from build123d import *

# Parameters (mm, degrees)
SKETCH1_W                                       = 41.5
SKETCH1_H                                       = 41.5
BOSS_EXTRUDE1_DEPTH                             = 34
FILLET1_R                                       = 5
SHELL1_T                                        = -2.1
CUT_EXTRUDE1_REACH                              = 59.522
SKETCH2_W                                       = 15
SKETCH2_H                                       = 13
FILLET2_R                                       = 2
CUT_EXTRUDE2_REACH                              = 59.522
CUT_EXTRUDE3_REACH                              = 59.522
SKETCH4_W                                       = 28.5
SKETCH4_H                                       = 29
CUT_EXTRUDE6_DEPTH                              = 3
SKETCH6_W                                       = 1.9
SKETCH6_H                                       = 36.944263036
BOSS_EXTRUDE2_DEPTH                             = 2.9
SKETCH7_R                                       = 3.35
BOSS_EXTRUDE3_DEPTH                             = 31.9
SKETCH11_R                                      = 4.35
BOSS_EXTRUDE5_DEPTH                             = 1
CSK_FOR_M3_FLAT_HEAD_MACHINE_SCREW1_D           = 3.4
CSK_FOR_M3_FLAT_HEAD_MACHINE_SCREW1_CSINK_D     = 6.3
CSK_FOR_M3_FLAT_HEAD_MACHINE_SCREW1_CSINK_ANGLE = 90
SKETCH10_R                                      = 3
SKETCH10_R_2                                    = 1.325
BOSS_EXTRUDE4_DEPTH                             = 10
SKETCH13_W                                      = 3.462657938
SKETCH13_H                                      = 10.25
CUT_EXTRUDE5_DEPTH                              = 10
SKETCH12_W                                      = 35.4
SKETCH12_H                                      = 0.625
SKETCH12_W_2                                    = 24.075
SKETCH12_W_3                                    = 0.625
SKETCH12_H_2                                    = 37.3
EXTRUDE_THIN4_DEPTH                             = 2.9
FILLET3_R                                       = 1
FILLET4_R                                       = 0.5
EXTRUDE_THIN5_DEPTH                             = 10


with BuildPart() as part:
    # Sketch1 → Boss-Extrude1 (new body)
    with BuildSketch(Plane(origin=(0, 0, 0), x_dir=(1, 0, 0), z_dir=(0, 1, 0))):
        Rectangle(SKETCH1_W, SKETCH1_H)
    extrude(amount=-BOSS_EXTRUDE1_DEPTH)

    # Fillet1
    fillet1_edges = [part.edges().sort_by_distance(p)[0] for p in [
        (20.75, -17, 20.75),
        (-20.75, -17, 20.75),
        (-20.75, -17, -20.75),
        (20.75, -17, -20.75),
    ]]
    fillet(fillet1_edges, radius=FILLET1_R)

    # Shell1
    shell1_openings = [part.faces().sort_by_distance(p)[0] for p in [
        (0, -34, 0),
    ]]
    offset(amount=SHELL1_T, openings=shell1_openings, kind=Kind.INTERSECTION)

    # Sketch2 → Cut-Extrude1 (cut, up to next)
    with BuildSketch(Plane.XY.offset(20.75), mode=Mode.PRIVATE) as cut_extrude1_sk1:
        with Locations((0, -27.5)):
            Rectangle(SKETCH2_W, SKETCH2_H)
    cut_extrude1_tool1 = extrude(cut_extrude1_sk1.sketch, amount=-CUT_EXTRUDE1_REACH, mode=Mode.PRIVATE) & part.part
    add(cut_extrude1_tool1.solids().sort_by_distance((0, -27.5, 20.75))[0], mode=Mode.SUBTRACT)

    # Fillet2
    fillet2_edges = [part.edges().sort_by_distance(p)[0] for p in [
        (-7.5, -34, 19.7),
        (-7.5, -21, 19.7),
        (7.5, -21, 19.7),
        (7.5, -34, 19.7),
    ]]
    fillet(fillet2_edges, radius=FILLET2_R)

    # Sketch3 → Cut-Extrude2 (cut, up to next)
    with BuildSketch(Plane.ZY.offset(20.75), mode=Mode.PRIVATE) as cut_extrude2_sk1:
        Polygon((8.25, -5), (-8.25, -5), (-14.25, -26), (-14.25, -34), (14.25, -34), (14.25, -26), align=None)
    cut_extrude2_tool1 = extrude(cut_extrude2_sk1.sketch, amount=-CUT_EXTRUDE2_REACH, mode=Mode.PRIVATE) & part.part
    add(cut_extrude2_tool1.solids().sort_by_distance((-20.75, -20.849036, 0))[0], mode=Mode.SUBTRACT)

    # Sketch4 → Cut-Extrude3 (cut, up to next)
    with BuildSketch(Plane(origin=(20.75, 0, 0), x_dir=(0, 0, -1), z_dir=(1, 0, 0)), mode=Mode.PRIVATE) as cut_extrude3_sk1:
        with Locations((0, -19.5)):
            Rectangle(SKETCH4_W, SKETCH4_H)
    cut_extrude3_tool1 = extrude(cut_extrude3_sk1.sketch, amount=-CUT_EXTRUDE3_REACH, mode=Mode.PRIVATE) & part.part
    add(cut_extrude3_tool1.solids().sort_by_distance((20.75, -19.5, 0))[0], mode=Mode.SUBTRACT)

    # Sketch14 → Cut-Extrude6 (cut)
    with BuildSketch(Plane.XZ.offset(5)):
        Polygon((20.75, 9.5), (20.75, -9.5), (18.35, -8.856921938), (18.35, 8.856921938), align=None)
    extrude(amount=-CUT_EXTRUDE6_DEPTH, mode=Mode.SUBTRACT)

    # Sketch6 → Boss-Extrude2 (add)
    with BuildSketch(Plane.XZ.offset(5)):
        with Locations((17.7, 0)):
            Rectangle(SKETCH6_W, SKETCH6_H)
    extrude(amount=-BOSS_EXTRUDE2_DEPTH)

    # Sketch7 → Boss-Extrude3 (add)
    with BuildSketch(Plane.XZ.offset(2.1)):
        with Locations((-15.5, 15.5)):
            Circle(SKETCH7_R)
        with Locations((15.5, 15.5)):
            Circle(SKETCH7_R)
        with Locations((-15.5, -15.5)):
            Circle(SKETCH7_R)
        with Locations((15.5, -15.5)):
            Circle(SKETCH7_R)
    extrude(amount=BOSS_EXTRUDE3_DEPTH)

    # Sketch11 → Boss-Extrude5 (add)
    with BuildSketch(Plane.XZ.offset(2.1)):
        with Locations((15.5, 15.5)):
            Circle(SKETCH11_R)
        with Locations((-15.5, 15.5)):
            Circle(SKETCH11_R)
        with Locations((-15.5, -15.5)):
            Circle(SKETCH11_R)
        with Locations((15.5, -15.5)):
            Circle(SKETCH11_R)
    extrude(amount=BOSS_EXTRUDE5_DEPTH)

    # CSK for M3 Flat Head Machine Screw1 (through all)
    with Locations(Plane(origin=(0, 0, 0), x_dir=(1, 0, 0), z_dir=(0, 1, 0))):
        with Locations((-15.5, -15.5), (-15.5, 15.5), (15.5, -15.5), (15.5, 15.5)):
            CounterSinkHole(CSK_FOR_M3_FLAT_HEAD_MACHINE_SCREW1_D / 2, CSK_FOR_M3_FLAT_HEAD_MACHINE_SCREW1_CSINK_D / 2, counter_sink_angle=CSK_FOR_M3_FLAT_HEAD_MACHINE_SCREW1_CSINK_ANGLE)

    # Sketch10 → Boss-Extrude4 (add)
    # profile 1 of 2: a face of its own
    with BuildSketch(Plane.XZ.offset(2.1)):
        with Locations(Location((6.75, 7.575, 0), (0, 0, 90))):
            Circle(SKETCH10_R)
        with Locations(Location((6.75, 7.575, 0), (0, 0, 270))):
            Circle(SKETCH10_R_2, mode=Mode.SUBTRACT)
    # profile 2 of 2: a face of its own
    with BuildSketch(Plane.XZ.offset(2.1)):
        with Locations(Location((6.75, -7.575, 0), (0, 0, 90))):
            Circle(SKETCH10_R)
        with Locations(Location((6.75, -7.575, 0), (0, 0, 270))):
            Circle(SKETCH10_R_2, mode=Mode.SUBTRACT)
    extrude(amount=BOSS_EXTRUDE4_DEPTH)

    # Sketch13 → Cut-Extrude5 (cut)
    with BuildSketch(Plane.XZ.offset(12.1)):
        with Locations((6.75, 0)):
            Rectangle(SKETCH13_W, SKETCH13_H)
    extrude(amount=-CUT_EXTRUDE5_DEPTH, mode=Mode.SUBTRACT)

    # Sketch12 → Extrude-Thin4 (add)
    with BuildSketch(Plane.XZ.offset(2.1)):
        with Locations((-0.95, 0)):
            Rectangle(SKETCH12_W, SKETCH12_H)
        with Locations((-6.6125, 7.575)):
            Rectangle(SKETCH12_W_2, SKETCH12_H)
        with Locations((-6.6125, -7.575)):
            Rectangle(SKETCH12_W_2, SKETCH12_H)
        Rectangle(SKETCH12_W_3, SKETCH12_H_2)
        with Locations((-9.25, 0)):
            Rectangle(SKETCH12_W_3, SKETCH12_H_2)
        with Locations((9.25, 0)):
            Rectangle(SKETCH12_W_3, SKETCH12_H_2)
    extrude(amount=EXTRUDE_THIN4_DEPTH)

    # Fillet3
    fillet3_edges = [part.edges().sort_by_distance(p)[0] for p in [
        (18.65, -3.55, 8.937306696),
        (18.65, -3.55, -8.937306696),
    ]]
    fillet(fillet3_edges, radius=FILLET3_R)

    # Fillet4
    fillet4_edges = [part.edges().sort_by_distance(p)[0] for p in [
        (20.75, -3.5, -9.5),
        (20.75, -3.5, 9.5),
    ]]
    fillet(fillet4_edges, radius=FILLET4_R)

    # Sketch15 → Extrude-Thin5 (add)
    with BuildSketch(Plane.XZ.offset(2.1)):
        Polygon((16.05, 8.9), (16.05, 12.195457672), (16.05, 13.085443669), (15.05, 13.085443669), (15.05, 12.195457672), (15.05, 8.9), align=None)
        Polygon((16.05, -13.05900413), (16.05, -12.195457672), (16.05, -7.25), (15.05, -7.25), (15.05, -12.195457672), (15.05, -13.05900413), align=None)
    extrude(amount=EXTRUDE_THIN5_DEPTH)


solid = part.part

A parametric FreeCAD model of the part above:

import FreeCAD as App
import Part
import Sketcher

V = App.Vector
Q = App.Units.Quantity


def edges_at(feature, points):
    """Names of the edges that pass closest to the given points."""
    edges = feature.Shape.Edges
    near = lambda p: min(range(len(edges)), key=lambda i: edges[i].distToShape(Part.Vertex(*p))[0])
    return sorted({f"Edge{near(p) + 1}" for p in points})


def faces_at(feature, points):
    """Names of the faces that lie closest to the given points."""
    faces = feature.Shape.Faces
    near = lambda p: min(range(len(faces)), key=lambda i: faces[i].distToShape(Part.Vertex(*p))[0])
    return sorted({f"Face{near(p) + 1}" for p in points})


def add_polygon(sketch, points):
    """Adds a closed chain of lines whose ends are joined by coincident constraints."""
    first, n = sketch.GeometryCount, len(points)
    for a, b in zip(points, points[1:] + points[:1]):
        sketch.addGeometry(Part.LineSegment(App.Vector(*a, 0), App.Vector(*b, 0)), False)
    for i in range(n):
        sketch.addConstraint(Sketcher.Constraint("Coincident", first + i, 2, first + (i + 1) % n, 1))

doc = App.newDocument("Part")
params = doc.addObject("Spreadsheet::Sheet", "Params")
for row, (alias, value) in enumerate([
    ("sketch1_width", "41.5 mm"),
    ("pad1_length", "34 mm"),
    ("fillet_radius", "5 mm"),
    ("thickness_wall", "2.1 mm"),
    ("sketch2_width", "15 mm"),
    ("sketch2_height", "13 mm"),
    ("fillet2_radius", "2 mm"),
    ("sketch3_width", "8 mm"),
    ("sketch3_height", "16.5 mm"),
    ("sketch3_height2", "28.5 mm"),
    ("sketch4_width", "29 mm"),
    ("sketch4_height", "28.5 mm"),
    ("sketch5_height", "19 mm"),
    ("pocket4_length", "3 mm"),
    ("sketch6_width", "1.9 mm"),
    ("pad2_length", "2.9 mm"),
    ("sketch7_diameter", "6.7 mm"),
    ("pad3_length", "31.9 mm"),
    ("sketch8_diameter", "8.7 mm"),
    ("pad4_length", "1 mm"),
    ("sketch9_diameter", "3.4 mm"),
    ("hole_diameter", "3.4 mm"),
    ("hole_csink_diameter", "6.3 mm"),
    ("sketch10_diameter", "6 mm"),
    ("sketch10_diameter2", "2.65 mm"),
    ("pad5_length", "10 mm"),
    ("sketch11_height", "10.25 mm"),
    ("pocket5_length", "10 mm"),
    ("sketch12_height", "6.95 mm"),
    ("pad6_length", "2.9 mm"),
    ("fillet3_radius", "1 mm"),
    ("fillet4_radius", "0.5 mm"),
    ("sketch13_width", "1 mm"),
    ("pad7_length", "10 mm"),
], start=1):
    params.set(f"A{row}", alias)
    params.set(f"B{row}", "=" + value)
    params.setAlias(f"B{row}", alias)

body = doc.addObject("PartDesign::Body", "Body")

sketch1 = doc.addObject("Sketcher::SketchObject", "Sketch")
body.addObject(sketch1)
sketch1.AttachmentSupport = (doc.XZ_Plane, [""])
sketch1.MapMode = "FlatFace"
add_polygon(sketch1, [(-21, -21), (-21, 21), (21, 21), (21, -21)])
sketch1.addConstraint(Sketcher.Constraint("Vertical", 0))
sketch1.addConstraint(Sketcher.Constraint("Horizontal", 1))
sketch1.addConstraint(Sketcher.Constraint("Vertical", 2))
sketch1.addConstraint(Sketcher.Constraint("Horizontal", 3))
sketch1.addConstraint(Sketcher.Constraint("Symmetric", 0, 2, 2, 2, -1, 1))
sketch1.addConstraint(Sketcher.Constraint("Equal", 3, 0))
sketch1.addConstraint(Sketcher.Constraint("DistanceX", 1, 1, 1, 2, Q("41.5 mm")))
sketch1.setExpression("Constraints[10]", "Params.sketch1_width")
pad1 = doc.addObject("PartDesign::Pad", "Pad")
body.addObject(pad1)
pad1.Profile = sketch1
pad1.setExpression("Length", "Params.pad1_length")
doc.recompute()

fillet = doc.addObject("PartDesign::Fillet", "Fillet")
body.addObject(fillet)
fillet.Base = (pad1, edges_at(pad1, [
    (20.75, -17, 20.75),
    (-20.75, -17, 20.75),
    (-20.75, -17, -20.75),
    (20.75, -17, -20.75),
]))
fillet.setExpression("Radius", "Params.fillet_radius")
doc.recompute()

thickness = doc.addObject("PartDesign::Thickness", "Thickness")
body.addObject(thickness)
thickness.Base = (fillet, faces_at(fillet, [(0, -34, 0)]))
thickness.setExpression("Value", "Params.thickness_wall")
thickness.Reversed = True
thickness.Join = "Intersection"

sketch2 = doc.addObject("Sketcher::SketchObject", "Sketch001")
body.addObject(sketch2)
sketch2.AttachmentSupport = (doc.XY_Plane, [""])
sketch2.MapMode = "FlatFace"
sketch2.AttachmentOffset = App.Placement(V(0, 0, 20.75), App.Rotation())
add_polygon(sketch2, [(-8, -21), (-8, -34), (8, -34), (8, -21)])
sketch2.addConstraint(Sketcher.Constraint("Vertical", 0))
sketch2.addConstraint(Sketcher.Constraint("Horizontal", 1))
sketch2.addConstraint(Sketcher.Constraint("Vertical", 2))
sketch2.addConstraint(Sketcher.Constraint("Horizontal", 3))
sketch2.addConstraint(Sketcher.Constraint("DistanceX", 1, 1, 1, 2, Q("15 mm")))
sketch2.addConstraint(Sketcher.Constraint("DistanceY", 0, 2, 0, 1, Q("13 mm")))
sketch2.addConstraint(Sketcher.Constraint("DistanceY", 0, 2, -1, 1, Q("34 mm")))
sketch2.addConstraint(Sketcher.Constraint("DistanceX", 0, 2, -1, 1, Q("7.5 mm")))
sketch2.setExpression("Constraints[8]", "Params.sketch2_width")
sketch2.setExpression("Constraints[9]", "Params.sketch2_height")
pocket1 = doc.addObject("PartDesign::Pocket", "Pocket")
body.addObject(pocket1)
pocket1.Profile = sketch2
pocket1.Type = "UpToFirst"
doc.recompute()

fillet2 = doc.addObject("PartDesign::Fillet", "Fillet001")
body.addObject(fillet2)
fillet2.Base = (pocket1, edges_at(pocket1, [
    (-7.5, -34, 19.7),
    (-7.5, -21, 19.7),
    (7.5, -21, 19.7),
    (7.5, -34, 19.7),
]))
fillet2.setExpression("Radius", "Params.fillet2_radius")

sketch3 = doc.addObject("Sketcher::SketchObject", "Sketch002")
body.addObject(sketch3)
sketch3.AttachmentSupport = (doc.YZ_Plane, [""])
sketch3.MapMode = "FlatFace"
sketch3.AttachmentOffset = App.Placement(V(0, 0, -20.75), App.Rotation())
add_polygon(sketch3, [(-5, 8), (-5, -8), (-26, -14), (-34, -14), (-34, 14), (-26, 14)])
sketch3.addConstraint(Sketcher.Constraint("Vertical", 0))
sketch3.addConstraint(Sketcher.Constraint("Horizontal", 2))
sketch3.addConstraint(Sketcher.Constraint("Vertical", 3))
sketch3.addConstraint(Sketcher.Constraint("Horizontal", 4))
sketch3.addConstraint(Sketcher.Constraint("Symmetric", 1, 2, 4, 2, -1))
sketch3.addConstraint(Sketcher.Constraint("Equal", 1, 5))
sketch3.addConstraint(Sketcher.Constraint("DistanceX", 2, 2, 2, 1, Q("8 mm")))
sketch3.addConstraint(Sketcher.Constraint("DistanceY", 0, 2, 0, 1, Q("16.5 mm")))
sketch3.addConstraint(Sketcher.Constraint("DistanceY", 3, 1, 3, 2, Q("28.5 mm")))
sketch3.addConstraint(Sketcher.Constraint("DistanceX", 0, 2, -1, 1, Q("5 mm")))
sketch3.addConstraint(Sketcher.Constraint("DistanceX", 1, 2, -1, 1, Q("26 mm")))
sketch3.setExpression("Constraints[12]", "Params.sketch3_width")
sketch3.setExpression("Constraints[13]", "Params.sketch3_height")
sketch3.setExpression("Constraints[14]", "Params.sketch3_height2")
pocket2 = doc.addObject("PartDesign::Pocket", "Pocket001")
body.addObject(pocket2)
pocket2.Profile = sketch3
pocket2.Type = "UpToFirst"
pocket2.Reversed = True

sketch4 = doc.addObject("Sketcher::SketchObject", "Sketch003")
body.addObject(sketch4)
sketch4.AttachmentSupport = (doc.YZ_Plane, [""])
sketch4.MapMode = "FlatFace"
sketch4.AttachmentOffset = App.Placement(V(0, 0, 20.75), App.Rotation())
add_polygon(sketch4, [(-5, 14), (-34, 14), (-34, -14), (-5, -14)])
sketch4.addConstraint(Sketcher.Constraint("Horizontal", 0))
sketch4.addConstraint(Sketcher.Constraint("Vertical", 1))
sketch4.addConstraint(Sketcher.Constraint("Horizontal", 2))
sketch4.addConstraint(Sketcher.Constraint("Vertical", 3))
sketch4.addConstraint(Sketcher.Constraint("DistanceX", 0, 2, 0, 1, Q("29 mm")))
sketch4.addConstraint(Sketcher.Constraint("DistanceY", 1, 2, 1, 1, Q("28.5 mm")))
sketch4.addConstraint(Sketcher.Constraint("DistanceX", 0, 2, -1, 1, Q("34 mm")))
sketch4.addConstraint(Sketcher.Constraint("DistanceY", -1, 1, 0, 2, Q("14.25 mm")))
sketch4.setExpression("Constraints[8]", "Params.sketch4_width")
sketch4.setExpression("Constraints[9]", "Params.sketch4_height")
pocket3 = doc.addObject("PartDesign::Pocket", "Pocket002")
body.addObject(pocket3)
pocket3.Profile = sketch4
pocket3.Type = "UpToFirst"

sketch5 = doc.addObject("Sketcher::SketchObject", "Sketch004")
body.addObject(sketch5)
sketch5.AttachmentSupport = (doc.XZ_Plane, [""])
sketch5.MapMode = "FlatFace"
sketch5.AttachmentOffset = App.Placement(V(0, 0, 5), App.Rotation())
add_polygon(sketch5, [(20.8, -9.5), (20.8, 9.5), (18.4, 8.9), (18.4, -8.9)])
sketch5.addConstraint(Sketcher.Constraint("Vertical", 0))
sketch5.addConstraint(Sketcher.Constraint("Vertical", 2))
sketch5.addConstraint(Sketcher.Constraint("Equal", 1, 3))
sketch5.addConstraint(Sketcher.Constraint("DistanceY", 0, 1, 0, 2, Q("19 mm")))
sketch5.addConstraint(Sketcher.Constraint("Angle", 1, Q("-165 deg")))
sketch5.addConstraint(Sketcher.Constraint("DistanceY", -1, 1, 0, 2, Q("9.5 mm")))
sketch5.addConstraint(Sketcher.Constraint("DistanceX", 1, 2, 0, 2, Q("2.4 mm")))
sketch5.addConstraint(Sketcher.Constraint("DistanceX", -1, 1, 0, 2, Q("20.75 mm")))
sketch5.setExpression("Constraints[7]", "Params.sketch5_height")
pocket4 = doc.addObject("PartDesign::Pocket", "Pocket003")
body.addObject(pocket4)
pocket4.Profile = sketch5
pocket4.setExpression("Length", "Params.pocket4_length")

sketch6 = doc.addObject("Sketcher::SketchObject", "Sketch005")
body.addObject(sketch6)
sketch6.AttachmentSupport = (doc.XZ_Plane, [""])
sketch6.MapMode = "FlatFace"
sketch6.AttachmentOffset = App.Placement(V(0, 0, 5), App.Rotation())
add_polygon(sketch6, [(16.8, 18.5), (16.8, -18.5), (18.6, -18.5), (18.6, 18.5)])
sketch6.addConstraint(Sketcher.Constraint("Vertical", 0))
sketch6.addConstraint(Sketcher.Constraint("Horizontal", 1))
sketch6.addConstraint(Sketcher.Constraint("Vertical", 2))
sketch6.addConstraint(Sketcher.Constraint("Horizontal", 3))
sketch6.addConstraint(Sketcher.Constraint("DistanceX", 1, 1, 1, 2, Q("1.9 mm")))
sketch6.addConstraint(Sketcher.Constraint("DistanceX", -1, 1, 0, 2, Q("16.75 mm")))
sketch6.addConstraint(Sketcher.Constraint("DistanceY", 0, 2, 0, 1, Q("36.944263 mm")))
sketch6.addConstraint(Sketcher.Constraint("DistanceY", 0, 2, -1, 1, Q("18.472132 mm")))
sketch6.setExpression("Constraints[8]", "Params.sketch6_width")
pad2 = doc.addObject("PartDesign::Pad", "Pad001")
body.addObject(pad2)
pad2.Profile = sketch6
pad2.setExpression("Length", "Params.pad2_length")
pad2.Reversed = True

sketch7 = doc.addObject("Sketcher::SketchObject", "Sketch006")
body.addObject(sketch7)
sketch7.AttachmentSupport = (doc.XZ_Plane, [""])
sketch7.MapMode = "FlatFace"
sketch7.AttachmentOffset = App.Placement(V(0, 0, 2.1), App.Rotation())
sketch7.addGeometry(Part.Circle(V(-15.5, 15.5, 0), V(0, 0, 1), 3.4), False)
sketch7.addGeometry(Part.Circle(V(15.5, 15.5, 0), V(0, 0, 1), 3.4), False)
sketch7.addGeometry(Part.Circle(V(-15.5, -15.5, 0), V(0, 0, 1), 3.4), False)
sketch7.addGeometry(Part.Circle(V(15.5, -15.5, 0), V(0, 0, 1), 3.4), False)
sketch7.addConstraint(Sketcher.Constraint("Equal", 0, 1))
sketch7.addConstraint(Sketcher.Constraint("Equal", 1, 2))
sketch7.addConstraint(Sketcher.Constraint("Equal", 2, 3))
sketch7.addConstraint(Sketcher.Constraint("Symmetric", 1, 3, 2, 3, -1, 1))
sketch7.addConstraint(Sketcher.Constraint("Symmetric", 0, 3, 3, 3, -1, 1))
sketch7.addConstraint(Sketcher.Constraint("Symmetric", 0, 3, 1, 3, -2))
sketch7.addConstraint(Sketcher.Constraint("Diameter", 0, Q("6.7 mm")))
sketch7.addConstraint(Sketcher.Constraint("DistanceX", 0, 3, 1, 3, Q("31 mm")))
sketch7.addConstraint(Sketcher.Constraint("DistanceY", 2, 3, 0, 3, Q("31 mm")))
sketch7.setExpression("Constraints[6]", "Params.sketch7_diameter")
pad3 = doc.addObject("PartDesign::Pad", "Pad002")
body.addObject(pad3)
pad3.Profile = sketch7
pad3.setExpression("Length", "Params.pad3_length")

sketch8 = doc.addObject("Sketcher::SketchObject", "Sketch007")
body.addObject(sketch8)
sketch8.AttachmentSupport = (doc.XZ_Plane, [""])
sketch8.MapMode = "FlatFace"
sketch8.AttachmentOffset = App.Placement(V(0, 0, 2.1), App.Rotation())
sketch8.addGeometry(Part.Circle(V(15.5, 15.5, 0), V(0, 0, 1), 4.3), False)
sketch8.addGeometry(Part.Circle(V(-15.5, 15.5, 0), V(0, 0, 1), 4.3), False)
sketch8.addGeometry(Part.Circle(V(-15.5, -15.5, 0), V(0, 0, 1), 4.3), False)
sketch8.addGeometry(Part.Circle(V(15.5, -15.5, 0), V(0, 0, 1), 4.3), False)
sketch8.addConstraint(Sketcher.Constraint("Equal", 0, 1))
sketch8.addConstraint(Sketcher.Constraint("Equal", 1, 2))
sketch8.addConstraint(Sketcher.Constraint("Equal", 2, 3))
sketch8.addConstraint(Sketcher.Constraint("Symmetric", 0, 3, 2, 3, -1, 1))
sketch8.addConstraint(Sketcher.Constraint("Symmetric", 1, 3, 3, 3, -1, 1))
sketch8.addConstraint(Sketcher.Constraint("Symmetric", 0, 3, 1, 3, -2))
sketch8.addConstraint(Sketcher.Constraint("Diameter", 0, Q("8.7 mm")))
sketch8.addConstraint(Sketcher.Constraint("DistanceX", 1, 3, 0, 3, Q("31 mm")))
sketch8.addConstraint(Sketcher.Constraint("DistanceY", 2, 3, 1, 3, Q("31 mm")))
sketch8.setExpression("Constraints[6]", "Params.sketch8_diameter")
pad4 = doc.addObject("PartDesign::Pad", "Pad003")
body.addObject(pad4)
pad4.Profile = sketch8
pad4.setExpression("Length", "Params.pad4_length")

sketch9 = doc.addObject("Sketcher::SketchObject", "Sketch008")
body.addObject(sketch9)
sketch9.AttachmentSupport = (doc.XZ_Plane, [""])
sketch9.MapMode = "FlatFace"
sketch9.addGeometry(Part.Circle(V(-15.5, 15.5, 0), V(0, 0, 1), 1.7), False)
sketch9.addGeometry(Part.Circle(V(-15.5, -15.5, 0), V(0, 0, 1), 1.7), False)
sketch9.addGeometry(Part.Circle(V(15.5, 15.5, 0), V(0, 0, 1), 1.7), False)
sketch9.addGeometry(Part.Circle(V(15.5, -15.5, 0), V(0, 0, 1), 1.7), False)
sketch9.addConstraint(Sketcher.Constraint("Equal", 0, 1))
sketch9.addConstraint(Sketcher.Constraint("Equal", 1, 2))
sketch9.addConstraint(Sketcher.Constraint("Equal", 2, 3))
sketch9.addConstraint(Sketcher.Constraint("Symmetric", 1, 3, 2, 3, -1, 1))
sketch9.addConstraint(Sketcher.Constraint("Symmetric", 0, 3, 3, 3, -1, 1))
sketch9.addConstraint(Sketcher.Constraint("Symmetric", 0, 3, 2, 3, -2))
sketch9.addConstraint(Sketcher.Constraint("Diameter", 0, Q("3.4 mm")))
sketch9.addConstraint(Sketcher.Constraint("DistanceY", 1, 3, 0, 3, Q("31 mm")))
sketch9.addConstraint(Sketcher.Constraint("DistanceX", 0, 3, 2, 3, Q("31 mm")))
sketch9.setExpression("Constraints[6]", "Params.sketch9_diameter")
doc.recompute()
hole = doc.addObject("PartDesign::Hole", "Hole")
body.addObject(hole)
hole.Profile = sketch9
hole.ThreadType = "None"
hole.setExpression("Diameter", "Params.hole_diameter")
hole.DepthType = "ThroughAll"
hole.HoleCutType = "Countersink"
hole.setExpression("HoleCutDiameter", "Params.hole_csink_diameter")
hole.HoleCutCountersinkAngle = 90
hole.Reversed = True

sketch10 = doc.addObject("Sketcher::SketchObject", "Sketch009")
body.addObject(sketch10)
sketch10.AttachmentSupport = (doc.XZ_Plane, [""])
sketch10.MapMode = "FlatFace"
sketch10.AttachmentOffset = App.Placement(V(0, 0, 2.1), App.Rotation())
sketch10.addGeometry(Part.Circle(V(6.8, 7.6, 0), V(0, 0, 1), 3), False)
sketch10.addGeometry(Part.Circle(V(6.8, 7.6, 0), V(0, 0, 1), 1.3), False)
sketch10.addGeometry(Part.Circle(V(6.8, -7.6, 0), V(0, 0, 1), 3), False)
sketch10.addGeometry(Part.Circle(V(6.8, -7.6, 0), V(0, 0, 1), 1.3), False)
sketch10.addConstraint(Sketcher.Constraint("Coincident", 1, 3, 0, 3))
sketch10.addConstraint(Sketcher.Constraint("Coincident", 3, 3, 2, 3))
sketch10.addConstraint(Sketcher.Constraint("Equal", 0, 2))
sketch10.addConstraint(Sketcher.Constraint("Equal", 1, 3))
sketch10.addConstraint(Sketcher.Constraint("Symmetric", 0, 3, 2, 3, -1))
sketch10.addConstraint(Sketcher.Constraint("Diameter", 0, Q("6 mm")))
sketch10.addConstraint(Sketcher.Constraint("Diameter", 1, Q("2.65 mm")))
sketch10.addConstraint(Sketcher.Constraint("DistanceX", -1, 1, 0, 3, Q("6.75 mm")))
sketch10.addConstraint(Sketcher.Constraint("DistanceY", 2, 3, 0, 3, Q("15.15 mm")))
sketch10.setExpression("Constraints[5]", "Params.sketch10_diameter")
sketch10.setExpression("Constraints[6]", "Params.sketch10_diameter2")
pad5 = doc.addObject("PartDesign::Pad", "Pad004")
body.addObject(pad5)
pad5.Profile = sketch10
pad5.setExpression("Length", "Params.pad5_length")

sketch11 = doc.addObject("Sketcher::SketchObject", "Sketch010")
body.addObject(sketch11)
sketch11.AttachmentSupport = (doc.XZ_Plane, [""])
sketch11.MapMode = "FlatFace"
sketch11.AttachmentOffset = App.Placement(V(0, 0, 12.1), App.Rotation())
add_polygon(sketch11, [(5, 5.1), (5, -5.1), (8.5, -5.1), (8.5, 5.1)])
sketch11.addConstraint(Sketcher.Constraint("Vertical", 0))
sketch11.addConstraint(Sketcher.Constraint("Horizontal", 1))
sketch11.addConstraint(Sketcher.Constraint("Vertical", 2))
sketch11.addConstraint(Sketcher.Constraint("Horizontal", 3))
sketch11.addConstraint(Sketcher.Constraint("DistanceY", 0, 2, 0, 1, Q("10.25 mm")))
sketch11.addConstraint(Sketcher.Constraint("DistanceY", 0, 2, -1, 1, Q("5.125 mm")))
sketch11.addConstraint(Sketcher.Constraint("DistanceX", 1, 1, 1, 2, Q("3.462658 mm")))
sketch11.addConstraint(Sketcher.Constraint("DistanceX", -1, 1, 0, 2, Q("5.018671 mm")))
sketch11.setExpression("Constraints[8]", "Params.sketch11_height")
pocket5 = doc.addObject("PartDesign::Pocket", "Pocket004")
body.addObject(pocket5)
pocket5.Profile = sketch11
pocket5.setExpression("Length", "Params.pocket5_length")

sketch12 = doc.addObject("Sketcher::SketchObject", "Sketch011")
body.addObject(sketch12)
sketch12.AttachmentSupport = (doc.XZ_Plane, [""])
sketch12.MapMode = "FlatFace"
sketch12.AttachmentOffset = App.Placement(V(0, 0, 2.1), App.Rotation())
add_polygon(sketch12, [(-18.6, 0.3), (-18.6, -0.3), (-9.6, -0.3), (-9.6, -7.3), (-18.6, -7.3), (-18.6, -7.9), (-9.6, -7.9), (-9.6, -18.6), (-8.9, -18.6), (-8.9, -7.9), (-0.3, -7.9), (-0.3, -18.6), (0.3, -18.6), (0.3, -7.9), (5.4, -7.9), (5.4, -7.3), (0.3, -7.3), (0.3, -0.3), (8.9, -0.3), (8.9, -18.6), (9.6, -18.6), (9.6, -0.3), (16.8, -0.3), (16.8, 0.3), (9.6, 0.3), (9.6, 18.6), (8.9, 18.6), (8.9, 0.3), (0.3, 0.3), (0.3, 7.3), (5.4, 7.3), (5.4, 7.9), (0.3, 7.9), (0.3, 18.6), (-0.3, 18.6), (-0.3, 7.9), (-8.9, 7.9), (-8.9, 18.6), (-9.6, 18.6), (-9.6, 7.9), (-18.6, 7.9), (-18.6, 7.3), (-9.6, 7.3), (-9.6, 0.3)])
add_polygon(sketch12, [(-8.9, -7.3), (-8.9, -0.3), (-0.3, -0.3), (-0.3, -7.3)])
add_polygon(sketch12, [(-8.9, 0.3), (-8.9, 7.3), (-0.3, 7.3), (-0.3, 0.3)])
sketch12.addConstraint(Sketcher.Constraint("Vertical", 0))
sketch12.addConstraint(Sketcher.Constraint("Horizontal", 1))
sketch12.addConstraint(Sketcher.Constraint("Vertical", 2))
sketch12.addConstraint(Sketcher.Constraint("Horizontal", 3))
sketch12.addConstraint(Sketcher.Constraint("Vertical", 4))
sketch12.addConstraint(Sketcher.Constraint("Horizontal", 5))
sketch12.addConstraint(Sketcher.Constraint("Vertical", 6))
sketch12.addConstraint(Sketcher.Constraint("Horizontal", 7))
sketch12.addConstraint(Sketcher.Constraint("Vertical", 8))
sketch12.addConstraint(Sketcher.Constraint("Horizontal", 9))
sketch12.addConstraint(Sketcher.Constraint("Vertical", 10))
sketch12.addConstraint(Sketcher.Constraint("Horizontal", 11))
sketch12.addConstraint(Sketcher.Constraint("Vertical", 12))
sketch12.addConstraint(Sketcher.Constraint("Horizontal", 13))
sketch12.addConstraint(Sketcher.Constraint("Vertical", 14))
sketch12.addConstraint(Sketcher.Constraint("Horizontal", 15))
sketch12.addConstraint(Sketcher.Constraint("Vertical", 16))
sketch12.addConstraint(Sketcher.Constraint("Horizontal", 17))
sketch12.addConstraint(Sketcher.Constraint("Vertical", 18))
sketch12.addConstraint(Sketcher.Constraint("Horizontal", 19))
sketch12.addConstraint(Sketcher.Constraint("Vertical", 20))
sketch12.addConstraint(Sketcher.Constraint("Horizontal", 21))
sketch12.addConstraint(Sketcher.Constraint("Vertical", 22))
sketch12.addConstraint(Sketcher.Constraint("Horizontal", 23))
sketch12.addConstraint(Sketcher.Constraint("Vertical", 24))
sketch12.addConstraint(Sketcher.Constraint("Horizontal", 25))
sketch12.addConstraint(Sketcher.Constraint("Vertical", 26))
sketch12.addConstraint(Sketcher.Constraint("Horizontal", 27))
sketch12.addConstraint(Sketcher.Constraint("Vertical", 28))
sketch12.addConstraint(Sketcher.Constraint("Horizontal", 29))
sketch12.addConstraint(Sketcher.Constraint("Vertical", 30))
sketch12.addConstraint(Sketcher.Constraint("Horizontal", 31))
sketch12.addConstraint(Sketcher.Constraint("Vertical", 32))
sketch12.addConstraint(Sketcher.Constraint("Horizontal", 33))
sketch12.addConstraint(Sketcher.Constraint("Vertical", 34))
sketch12.addConstraint(Sketcher.Constraint("Horizontal", 35))
sketch12.addConstraint(Sketcher.Constraint("Vertical", 36))
sketch12.addConstraint(Sketcher.Constraint("Horizontal", 37))
sketch12.addConstraint(Sketcher.Constraint("Vertical", 38))
sketch12.addConstraint(Sketcher.Constraint("Horizontal", 39))
sketch12.addConstraint(Sketcher.Constraint("Vertical", 40))
sketch12.addConstraint(Sketcher.Constraint("Horizontal", 41))
sketch12.addConstraint(Sketcher.Constraint("Vertical", 42))
sketch12.addConstraint(Sketcher.Constraint("Horizontal", 43))
sketch12.addConstraint(Sketcher.Constraint("Vertical", 44))
sketch12.addConstraint(Sketcher.Constraint("Horizontal", 45))
sketch12.addConstraint(Sketcher.Constraint("Vertical", 46))
sketch12.addConstraint(Sketcher.Constraint("Horizontal", 47))
sketch12.addConstraint(Sketcher.Constraint("Vertical", 48))
sketch12.addConstraint(Sketcher.Constraint("Horizontal", 49))
sketch12.addConstraint(Sketcher.Constraint("Vertical", 50))
sketch12.addConstraint(Sketcher.Constraint("Horizontal", 51))
sketch12.addConstraint(Sketcher.Constraint("Symmetric", 1, 2, 23, 2, -1, 1))
sketch12.addConstraint(Sketcher.Constraint("Symmetric", 6, 2, 24, 2, -1, 1))
sketch12.addConstraint(Sketcher.Constraint("Symmetric", 9, 2, 31, 2, -1, 1))
sketch12.addConstraint(Sketcher.Constraint("Symmetric", 11, 2, 33, 2, -1, 1))
sketch12.addConstraint(Sketcher.Constraint("Symmetric", 18, 2, 36, 2, -1, 1))
sketch12.addConstraint(Sketcher.Constraint("Symmetric", 20, 2, 42, 2, -1, 1))
sketch12.addConstraint(Sketcher.Constraint("Symmetric", 26, 2, 44, 2, -1, 1))
sketch12.addConstraint(Sketcher.Constraint("Symmetric", 28, 2, 46, 2, -1, 1))
sketch12.addConstraint(Sketcher.Constraint("Symmetric", 15, 2, 49, 2, -1, 1))
sketch12.addConstraint(Sketcher.Constraint("Symmetric", 17, 2, 51, 2, -1, 1))
sketch12.addConstraint(Sketcher.Constraint("Symmetric", 9, 2, 12, 2, -2))
sketch12.addConstraint(Sketcher.Constraint("Symmetric", 7, 2, 18, 2, -2))
sketch12.addConstraint(Sketcher.Constraint("Symmetric", 1, 2, 20, 2, -2))
sketch12.addConstraint(Sketcher.Constraint("Symmetric", 17, 2, 44, 2, -2))
sketch12.addConstraint(Sketcher.Constraint("Symmetric", 15, 2, 46, 2, -2))
sketch12.addConstraint(Sketcher.Constraint("Symmetric", 5, 2, 38, 2, -1))
sketch12.addConstraint(Sketcher.Constraint("Symmetric", 3, 2, 40, 2, -1))
sketch12.addConstraint(Sketcher.Constraint("Horizontal", 5, 2, 8, 2))
sketch12.addConstraint(Sketcher.Constraint("Horizontal", 7, 2, 10, 2))
sketch12.addConstraint(Sketcher.Constraint("Horizontal", 3, 2, 14, 2))
sketch12.addConstraint(Sketcher.Constraint("Horizontal", 1, 2, 16, 2))
sketch12.addConstraint(Sketcher.Constraint("Horizontal", 31, 2, 34, 2))
sketch12.addConstraint(Sketcher.Constraint("Vertical", 0, 2, 3, 2))
sketch12.addConstraint(Sketcher.Constraint("Vertical", 12, 2, 15, 2))
sketch12.addConstraint(Sketcher.Constraint("Vertical", 14, 2, 29, 2))
sketch12.addConstraint(Sketcher.Constraint("Equal", 7, 11))
sketch12.addConstraint(Sketcher.Constraint("Equal", 37, 0))
sketch12.addConstraint(Sketcher.Constraint("Equal", 0, 4))
sketch12.addConstraint(Sketcher.Constraint("DistanceY", 2, 2, 2, 1, Q("6.95 mm")))
sketch12.addConstraint(Sketcher.Constraint("DistanceY", 13, 2, 22, 2, Q("8.2 mm")))
sketch12.addConstraint(Sketcher.Constraint("DistanceX", 9, 1, 9, 2, Q("8.625 mm")))
sketch12.addConstraint(Sketcher.Constraint("DistanceX", 0, 2, -1, 1, Q("18.65 mm")))
sketch12.addConstraint(Sketcher.Constraint("DistanceY", 6, 2, -1, 1, Q("18.65 mm")))
sketch12.addConstraint(Sketcher.Constraint("DistanceX", -1, 1, 21, 2, Q("16.75 mm")))
sketch12.addConstraint(Sketcher.Constraint("DistanceX", 13, 1, 13, 2, Q("5.1125 mm")))
sketch12.setExpression("Constraints[132]", "Params.sketch12_height")
pad6 = doc.addObject("PartDesign::Pad", "Pad005")
body.addObject(pad6)
pad6.Profile = sketch12
pad6.setExpression("Length", "Params.pad6_length")
doc.recompute()

fillet3 = doc.addObject("PartDesign::Fillet", "Fillet002")
body.addObject(fillet3)
fillet3.Base = (pad6, edges_at(pad6, [(18.65, -3.55, 8.937), (18.65, -3.55, -8.937)]))
fillet3.setExpression("Radius", "Params.fillet3_radius")
doc.recompute()

fillet4 = doc.addObject("PartDesign::Fillet", "Fillet003")
body.addObject(fillet4)
fillet4.Base = (fillet3, edges_at(fillet3, [(20.75, -3.5, -9.5), (20.75, -3.5, 9.5)]))
fillet4.setExpression("Radius", "Params.fillet4_radius")

sketch13 = doc.addObject("Sketcher::SketchObject", "Sketch012")
body.addObject(sketch13)
sketch13.AttachmentSupport = (doc.XZ_Plane, [""])
sketch13.MapMode = "FlatFace"
sketch13.AttachmentOffset = App.Placement(V(0, 0, 2.1), App.Rotation())
add_polygon(sketch13, [(16.1, 8.9), (16.1, 13.1), (15.1, 13.1), (15.1, 8.9)])
add_polygon(sketch13, [(16.1, -13.1), (16.1, -7.2), (15.1, -7.2), (15.1, -13.1)])
sketch13.addConstraint(Sketcher.Constraint("Vertical", 0))
sketch13.addConstraint(Sketcher.Constraint("Horizontal", 1))
sketch13.addConstraint(Sketcher.Constraint("Vertical", 2))
sketch13.addConstraint(Sketcher.Constraint("Horizontal", 3))
sketch13.addConstraint(Sketcher.Constraint("Vertical", 4))
sketch13.addConstraint(Sketcher.Constraint("Horizontal", 5))
sketch13.addConstraint(Sketcher.Constraint("Vertical", 6))
sketch13.addConstraint(Sketcher.Constraint("Horizontal", 7))
sketch13.addConstraint(Sketcher.Constraint("Vertical", 3, 2, 4, 2))
sketch13.addConstraint(Sketcher.Constraint("Vertical", 2, 2, 5, 2))
sketch13.addConstraint(Sketcher.Constraint("DistanceX", 1, 2, 1, 1, Q("1 mm")))
sketch13.addConstraint(Sketcher.Constraint("DistanceY", -1, 1, 2, 2, Q("8.9 mm")))
sketch13.addConstraint(Sketcher.Constraint("DistanceX", -1, 1, 0, 2, Q("16.05 mm")))
sketch13.addConstraint(Sketcher.Constraint("DistanceY", 4, 2, -1, 1, Q("7.25 mm")))
sketch13.addConstraint(Sketcher.Constraint("DistanceY", 0, 1, 0, 2, Q("4.185444 mm")))
sketch13.addConstraint(Sketcher.Constraint("DistanceY", 4, 1, 4, 2, Q("5.809004 mm")))
sketch13.setExpression("Constraints[18]", "Params.sketch13_width")
pad7 = doc.addObject("PartDesign::Pad", "Pad006")
body.addObject(pad7)
pad7.Profile = sketch13
pad7.setExpression("Length", "Params.pad7_length")

doc.recompute()
